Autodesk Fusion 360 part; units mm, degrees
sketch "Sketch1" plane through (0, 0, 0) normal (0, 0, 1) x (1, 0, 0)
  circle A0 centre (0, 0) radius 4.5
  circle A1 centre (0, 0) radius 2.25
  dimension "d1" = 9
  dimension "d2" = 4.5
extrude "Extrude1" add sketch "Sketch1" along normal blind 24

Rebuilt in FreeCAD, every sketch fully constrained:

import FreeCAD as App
import Part
import Sketcher
from FreeCAD import Vector

doc = App.newDocument("Part")
body = doc.addObject("PartDesign::Body", "Body")

sketch1 = body.newObject("Sketcher::SketchObject", "Sketch")
sketch1.AttachmentSupport = (doc.getObject("XY_Plane"), [""])
sketch1.MapMode = "FlatFace"
sketch1.addGeometry([
    Part.Circle(Vector(0, 0, 0), Vector(0, 0, 1), 4.5),
    Part.Circle(Vector(0, 0, 0), Vector(0, 0, 1), 2.25),
], False)
sketch1.addConstraint([
    Sketcher.Constraint("Coincident", 0, 3, -1, 1),
    Sketcher.Constraint("Coincident", 1, 3, -1, 1),
    Sketcher.Constraint("Diameter", 0, 9.0),
    Sketcher.Constraint("Diameter", 1, 4.5),
])
pad1 = body.newObject("PartDesign::Pad", "Pad")
pad1.Profile = sketch1
pad1.Length = 24

doc.recompute()
